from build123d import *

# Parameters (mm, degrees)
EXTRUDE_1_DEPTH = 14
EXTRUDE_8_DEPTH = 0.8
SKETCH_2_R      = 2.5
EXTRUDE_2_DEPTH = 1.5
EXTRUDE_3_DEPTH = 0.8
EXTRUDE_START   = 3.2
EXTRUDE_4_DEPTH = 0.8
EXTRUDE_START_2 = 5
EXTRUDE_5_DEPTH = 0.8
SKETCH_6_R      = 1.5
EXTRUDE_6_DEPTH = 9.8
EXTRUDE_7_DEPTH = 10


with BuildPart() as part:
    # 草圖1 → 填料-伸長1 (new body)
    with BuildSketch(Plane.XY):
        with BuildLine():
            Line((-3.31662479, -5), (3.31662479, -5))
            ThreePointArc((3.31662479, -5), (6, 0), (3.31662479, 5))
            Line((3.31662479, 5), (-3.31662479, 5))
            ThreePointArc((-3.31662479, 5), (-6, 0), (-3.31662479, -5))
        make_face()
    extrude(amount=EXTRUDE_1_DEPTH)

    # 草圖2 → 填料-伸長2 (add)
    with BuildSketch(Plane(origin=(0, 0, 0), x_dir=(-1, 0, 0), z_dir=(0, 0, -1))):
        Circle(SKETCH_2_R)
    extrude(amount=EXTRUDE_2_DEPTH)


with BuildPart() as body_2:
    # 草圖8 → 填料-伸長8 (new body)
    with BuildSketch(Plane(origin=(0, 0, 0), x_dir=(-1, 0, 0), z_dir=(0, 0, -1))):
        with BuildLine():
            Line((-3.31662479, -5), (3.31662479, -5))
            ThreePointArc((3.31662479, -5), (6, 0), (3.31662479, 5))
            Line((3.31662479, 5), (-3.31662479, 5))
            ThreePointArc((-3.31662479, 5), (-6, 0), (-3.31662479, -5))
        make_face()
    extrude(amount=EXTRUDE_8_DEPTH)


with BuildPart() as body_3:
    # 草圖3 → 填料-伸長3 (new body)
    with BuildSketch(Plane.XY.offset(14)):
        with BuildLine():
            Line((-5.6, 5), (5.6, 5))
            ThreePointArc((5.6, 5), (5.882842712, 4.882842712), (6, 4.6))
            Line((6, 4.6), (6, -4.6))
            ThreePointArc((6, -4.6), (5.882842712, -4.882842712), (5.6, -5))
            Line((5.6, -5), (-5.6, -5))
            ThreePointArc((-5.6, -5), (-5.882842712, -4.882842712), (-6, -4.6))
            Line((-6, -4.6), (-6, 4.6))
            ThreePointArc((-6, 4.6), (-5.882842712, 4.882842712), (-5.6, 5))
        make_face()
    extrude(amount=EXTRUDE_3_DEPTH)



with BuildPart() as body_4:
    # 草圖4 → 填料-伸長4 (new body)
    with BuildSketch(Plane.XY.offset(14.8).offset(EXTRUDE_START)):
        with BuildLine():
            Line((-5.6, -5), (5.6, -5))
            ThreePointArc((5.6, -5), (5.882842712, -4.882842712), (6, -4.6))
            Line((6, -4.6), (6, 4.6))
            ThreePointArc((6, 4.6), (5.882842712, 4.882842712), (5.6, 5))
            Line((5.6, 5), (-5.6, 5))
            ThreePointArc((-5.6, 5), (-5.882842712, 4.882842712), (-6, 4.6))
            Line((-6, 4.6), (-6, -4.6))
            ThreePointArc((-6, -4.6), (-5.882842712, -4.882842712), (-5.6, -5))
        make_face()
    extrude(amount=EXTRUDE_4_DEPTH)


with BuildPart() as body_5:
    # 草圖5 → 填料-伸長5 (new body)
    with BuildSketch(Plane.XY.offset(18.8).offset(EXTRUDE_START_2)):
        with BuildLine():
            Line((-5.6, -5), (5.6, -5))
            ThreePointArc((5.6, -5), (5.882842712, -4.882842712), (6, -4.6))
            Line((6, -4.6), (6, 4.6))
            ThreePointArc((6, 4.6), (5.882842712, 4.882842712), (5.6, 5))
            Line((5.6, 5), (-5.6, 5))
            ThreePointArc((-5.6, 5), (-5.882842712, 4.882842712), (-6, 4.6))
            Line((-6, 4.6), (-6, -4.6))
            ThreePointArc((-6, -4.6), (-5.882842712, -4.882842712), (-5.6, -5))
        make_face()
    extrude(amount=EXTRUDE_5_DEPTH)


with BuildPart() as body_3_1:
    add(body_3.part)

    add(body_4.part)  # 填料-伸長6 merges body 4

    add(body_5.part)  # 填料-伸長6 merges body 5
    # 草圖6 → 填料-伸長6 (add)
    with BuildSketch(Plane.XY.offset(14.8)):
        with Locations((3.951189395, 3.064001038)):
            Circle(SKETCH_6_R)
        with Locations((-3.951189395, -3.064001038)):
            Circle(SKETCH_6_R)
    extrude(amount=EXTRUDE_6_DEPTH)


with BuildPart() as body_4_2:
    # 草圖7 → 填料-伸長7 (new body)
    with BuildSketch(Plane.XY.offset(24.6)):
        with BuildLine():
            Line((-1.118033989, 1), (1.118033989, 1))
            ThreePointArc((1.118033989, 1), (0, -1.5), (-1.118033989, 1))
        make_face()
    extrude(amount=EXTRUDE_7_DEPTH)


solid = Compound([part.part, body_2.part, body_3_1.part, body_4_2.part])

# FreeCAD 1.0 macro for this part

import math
import FreeCAD as App
import Part
import Sketcher
Q = App.Units.Quantity

doc = App.newDocument("Part")
params = doc.addObject("Spreadsheet::Sheet", "Params")
for row, (alias, value) in enumerate([
    ("sketch1_radius", "6 mm"),
    ("pad1_length", "14 mm"),
    ("sketch2_diameter", "5 mm"),
    ("pad2_length", "1.5 mm"),
    ("sketch3_radius", "6 mm"),
    ("pad3_length", "0.8 mm"),
    ("sketch4_radius", "0.4 mm"),
    ("sketch4_width", "11.2 mm"),
    ("sketch4_height", "9.2 mm"),
    ("pad4_length", "0.8 mm"),
    ("sketch5_radius", "0.4 mm"),
    ("sketch5_width", "11.2 mm"),
    ("sketch5_height", "9.2 mm"),
    ("pad5_length", "0.8 mm"),
    ("sketch6_radius", "0.4 mm"),
    ("sketch6_width", "11.2 mm"),
    ("sketch6_height", "9.2 mm"),
    ("pad6_length", "0.8 mm"),
    ("sketch7_diameter", "3 mm"),
    ("pad7_length", "9.8 mm"),
    ("sketch8_radius", "1.5 mm"),
    ("pad8_length", "10 mm"),
], start=1):
    params.set(f"A{row}", alias)
    params.set(f"B{row}", "=" + value)
    params.setAlias(f"B{row}", alias)

body = doc.addObject("PartDesign::Body", "Body")

sketch1 = doc.addObject("Sketcher::SketchObject", "Sketch")
body.addObject(sketch1)
sketch1.AttachmentSupport = (doc.XY_Plane, [""])
sketch1.MapMode = "FlatFace"
sketch1.addGeometry(Part.LineSegment(App.Vector(-3, -5, 0), App.Vector(3, -5, 0)), False)
sketch1.addGeometry(Part.ArcOfCircle(Part.Circle(App.Vector(0, 0, 0), App.Vector(0, 0, 1), 6), math.radians(-56), math.radians(56)), False)
sketch1.addGeometry(Part.LineSegment(App.Vector(3, 5, 0), App.Vector(-3, 5, 0)), False)
sketch1.addGeometry(Part.ArcOfCircle(Part.Circle(App.Vector(0, 0, 0), App.Vector(0, 0, 1), 6), math.radians(124), math.radians(236)), False)
sketch1.addConstraint(Sketcher.Constraint("Coincident", 0, 2, 1, 1))
sketch1.addConstraint(Sketcher.Constraint("Coincident", 1, 2, 2, 1))
sketch1.addConstraint(Sketcher.Constraint("Coincident", 2, 2, 3, 1))
sketch1.addConstraint(Sketcher.Constraint("Coincident", 3, 2, 0, 1))
sketch1.addConstraint(Sketcher.Constraint("Horizontal", 0))
sketch1.addConstraint(Sketcher.Constraint("Horizontal", 2))
sketch1.addConstraint(Sketcher.Constraint("Coincident", 1, 3, -1, 1))
sketch1.addConstraint(Sketcher.Constraint("Coincident", 3, 3, -1, 1))
sketch1.addConstraint(Sketcher.Constraint("Equal", 1, 3))
sketch1.addConstraint(Sketcher.Constraint("Vertical", 0, 2, 1, 2))
sketch1.addConstraint(Sketcher.Constraint("Radius", 1, Q("6 mm")))
sketch1.addConstraint(Sketcher.Constraint("DistanceY", 0, 2, -1, 1, Q("5 mm")))
sketch1.setExpression("Constraints[10]", "Params.sketch1_radius")
pad1 = doc.addObject("PartDesign::Pad", "Pad")
body.addObject(pad1)
pad1.Profile = sketch1
pad1.setExpression("Length", "Params.pad1_length")

sketch2 = doc.addObject("Sketcher::SketchObject", "Sketch001")
body.addObject(sketch2)
sketch2.AttachmentSupport = (doc.XY_Plane, [""])
sketch2.MapMode = "FlatFace"
sketch2.addGeometry(Part.Circle(App.Vector(0, 0, 0), App.Vector(0, 0, 1), 2.5), False)
sketch2.addConstraint(Sketcher.Constraint("Coincident", 0, 3, -1, 1))
sketch2.addConstraint(Sketcher.Constraint("Diameter", 0, Q("5 mm")))
sketch2.setExpression("Constraints[1]", "Params.sketch2_diameter")
pad2 = doc.addObject("PartDesign::Pad", "Pad001")
body.addObject(pad2)
pad2.Profile = sketch2
pad2.setExpression("Length", "Params.pad2_length")
pad2.Reversed = True
body2 = doc.addObject("PartDesign::Body", "Body001")

sketch3 = doc.addObject("Sketcher::SketchObject", "Sketch002")
body2.addObject(sketch3)
sketch3.AttachmentSupport = (doc.getObject("XY_Plane001"), [""])
sketch3.MapMode = "FlatFace"
sketch3.addGeometry(Part.LineSegment(App.Vector(3, -5, 0), App.Vector(-3, -5, 0)), False)
sketch3.addGeometry(Part.ArcOfCircle(Part.Circle(App.Vector(0, 0, 0), App.Vector(0, 0, 1), 6), math.radians(124), math.radians(236)), False)
sketch3.addGeometry(Part.LineSegment(App.Vector(-3, 5, 0), App.Vector(3, 5, 0)), False)
sketch3.addGeometry(Part.ArcOfCircle(Part.Circle(App.Vector(0, 0, 0), App.Vector(0, 0, 1), 6), math.radians(-56), math.radians(56)), False)
sketch3.addConstraint(Sketcher.Constraint("Coincident", 0, 2, 1, 2))
sketch3.addConstraint(Sketcher.Constraint("Coincident", 1, 1, 2, 1))
sketch3.addConstraint(Sketcher.Constraint("Coincident", 2, 2, 3, 2))
sketch3.addConstraint(Sketcher.Constraint("Coincident", 3, 1, 0, 1))
sketch3.addConstraint(Sketcher.Constraint("Horizontal", 0))
sketch3.addConstraint(Sketcher.Constraint("Horizontal", 2))
sketch3.addConstraint(Sketcher.Constraint("Coincident", 1, 3, -1, 1))
sketch3.addConstraint(Sketcher.Constraint("Coincident", 3, 3, -1, 1))
sketch3.addConstraint(Sketcher.Constraint("Equal", 1, 3))
sketch3.addConstraint(Sketcher.Constraint("Vertical", 0, 2, 1, 1))
sketch3.addConstraint(Sketcher.Constraint("Radius", 1, Q("6 mm")))
sketch3.addConstraint(Sketcher.Constraint("DistanceY", 0, 2, -1, 1, Q("5 mm")))
sketch3.setExpression("Constraints[10]", "Params.sketch3_radius")
pad3 = doc.addObject("PartDesign::Pad", "Pad002")
body2.addObject(pad3)
pad3.Profile = sketch3
pad3.setExpression("Length", "Params.pad3_length")
pad3.Reversed = True
body3 = doc.addObject("PartDesign::Body", "Body002")

sketch4 = doc.addObject("Sketcher::SketchObject", "Sketch003")
body3.addObject(sketch4)
sketch4.AttachmentSupport = (doc.getObject("XY_Plane002"), [""])
sketch4.MapMode = "FlatFace"
sketch4.AttachmentOffset = App.Placement(App.Vector(0, 0, 14), App.Rotation())
sketch4.addGeometry(Part.LineSegment(App.Vector(5.6, 5, 0), App.Vector(-5.6, 5, 0)), False)
sketch4.addGeometry(Part.ArcOfCircle(Part.Circle(App.Vector(-5.6, 4.6, 0), App.Vector(0, 0, 1), 0.4), math.radians(90), math.radians(180)), False)
sketch4.addGeometry(Part.LineSegment(App.Vector(-6, 4.6, 0), App.Vector(-6, -4.6, 0)), False)
sketch4.addGeometry(Part.ArcOfCircle(Part.Circle(App.Vector(-5.6, -4.6, 0), App.Vector(0, 0, 1), 0.4), math.radians(-180), math.radians(-90)), False)
sketch4.addGeometry(Part.LineSegment(App.Vector(-5.6, -5, 0), App.Vector(5.6, -5, 0)), False)
sketch4.addGeometry(Part.ArcOfCircle(Part.Circle(App.Vector(5.6, -4.6, 0), App.Vector(0, 0, 1), 0.4), math.radians(-90), math.radians(0)), False)
sketch4.addGeometry(Part.LineSegment(App.Vector(6, -4.6, 0), App.Vector(6, 4.6, 0)), False)
sketch4.addGeometry(Part.ArcOfCircle(Part.Circle(App.Vector(5.6, 4.6, 0), App.Vector(0, 0, 1), 0.4), math.radians(0), math.radians(90)), False)
sketch4.addConstraint(Sketcher.Constraint("Tangent", 0, 2, 1, 1))
sketch4.addConstraint(Sketcher.Constraint("Tangent", 1, 2, 2, 1))
sketch4.addConstraint(Sketcher.Constraint("Tangent", 2, 2, 3, 1))
sketch4.addConstraint(Sketcher.Constraint("Tangent", 3, 2, 4, 1))
sketch4.addConstraint(Sketcher.Constraint("Tangent", 4, 2, 5, 1))
sketch4.addConstraint(Sketcher.Constraint("Tangent", 5, 2, 6, 1))
sketch4.addConstraint(Sketcher.Constraint("Tangent", 6, 2, 7, 1))
sketch4.addConstraint(Sketcher.Constraint("Tangent", 7, 2, 0, 1))
sketch4.addConstraint(Sketcher.Constraint("Horizontal", 0))
sketch4.addConstraint(Sketcher.Constraint("Vertical", 2))
sketch4.addConstraint(Sketcher.Constraint("Horizontal", 4))
sketch4.addConstraint(Sketcher.Constraint("Vertical", 6))
sketch4.addConstraint(Sketcher.Constraint("Equal", 1, 3))
sketch4.addConstraint(Sketcher.Constraint("Equal", 3, 5))
sketch4.addConstraint(Sketcher.Constraint("Equal", 5, 7))
sketch4.addConstraint(Sketcher.Constraint("Symmetric", 1, 3, 5, 3, -1, 1))
sketch4.addConstraint(Sketcher.Constraint("Radius", 1, Q("0.4 mm")))
sketch4.addConstraint(Sketcher.Constraint("DistanceX", 0, 2, 0, 1, Q("11.2 mm")))
sketch4.addConstraint(Sketcher.Constraint("DistanceY", 2, 2, 2, 1, Q("9.2 mm")))
sketch4.setExpression("Constraints[16]", "Params.sketch4_radius")
sketch4.setExpression("Constraints[17]", "Params.sketch4_width")
sketch4.setExpression("Constraints[18]", "Params.sketch4_height")
pad4 = doc.addObject("PartDesign::Pad", "Pad003")
body3.addObject(pad4)
pad4.Profile = sketch4
pad4.setExpression("Length", "Params.pad4_length")
body4 = doc.addObject("PartDesign::Body", "Body003")

sketch5 = doc.addObject("Sketcher::SketchObject", "Sketch004")
body4.addObject(sketch5)
sketch5.AttachmentSupport = (doc.getObject("XY_Plane003"), [""])
sketch5.MapMode = "FlatFace"
sketch5.AttachmentOffset = App.Placement(App.Vector(0, 0, 18), App.Rotation())
sketch5.addGeometry(Part.LineSegment(App.Vector(-5.6, -5, 0), App.Vector(5.6, -5, 0)), False)
sketch5.addGeometry(Part.ArcOfCircle(Part.Circle(App.Vector(5.6, -4.6, 0), App.Vector(0, 0, 1), 0.4), math.radians(-90), math.radians(0)), False)
sketch5.addGeometry(Part.LineSegment(App.Vector(6, -4.6, 0), App.Vector(6, 4.6, 0)), False)
sketch5.addGeometry(Part.ArcOfCircle(Part.Circle(App.Vector(5.6, 4.6, 0), App.Vector(0, 0, 1), 0.4), math.radians(0), math.radians(90)), False)
sketch5.addGeometry(Part.LineSegment(App.Vector(5.6, 5, 0), App.Vector(-5.6, 5, 0)), False)
sketch5.addGeometry(Part.ArcOfCircle(Part.Circle(App.Vector(-5.6, 4.6, 0), App.Vector(0, 0, 1), 0.4), math.radians(90), math.radians(180)), False)
sketch5.addGeometry(Part.LineSegment(App.Vector(-6, 4.6, 0), App.Vector(-6, -4.6, 0)), False)
sketch5.addGeometry(Part.ArcOfCircle(Part.Circle(App.Vector(-5.6, -4.6, 0), App.Vector(0, 0, 1), 0.4), math.radians(-180), math.radians(-90)), False)
sketch5.addConstraint(Sketcher.Constraint("Tangent", 0, 2, 1, 1))
sketch5.addConstraint(Sketcher.Constraint("Tangent", 1, 2, 2, 1))
sketch5.addConstraint(Sketcher.Constraint("Tangent", 2, 2, 3, 1))
sketch5.addConstraint(Sketcher.Constraint("Tangent", 3, 2, 4, 1))
sketch5.addConstraint(Sketcher.Constraint("Tangent", 4, 2, 5, 1))
sketch5.addConstraint(Sketcher.Constraint("Tangent", 5, 2, 6, 1))
sketch5.addConstraint(Sketcher.Constraint("Tangent", 6, 2, 7, 1))
sketch5.addConstraint(Sketcher.Constraint("Tangent", 7, 2, 0, 1))
sketch5.addConstraint(Sketcher.Constraint("Horizontal", 0))
sketch5.addConstraint(Sketcher.Constraint("Vertical", 2))
sketch5.addConstraint(Sketcher.Constraint("Horizontal", 4))
sketch5.addConstraint(Sketcher.Constraint("Vertical", 6))
sketch5.addConstraint(Sketcher.Constraint("Equal", 1, 3))
sketch5.addConstraint(Sketcher.Constraint("Equal", 3, 5))
sketch5.addConstraint(Sketcher.Constraint("Equal", 5, 7))
sketch5.addConstraint(Sketcher.Constraint("Symmetric", 1, 3, 5, 3, -1, 1))
sketch5.addConstraint(Sketcher.Constraint("Radius", 1, Q("0.4 mm")))
sketch5.addConstraint(Sketcher.Constraint("DistanceX", 0, 1, 0, 2, Q("11.2 mm")))
sketch5.addConstraint(Sketcher.Constraint("DistanceY", 2, 1, 2, 2, Q("9.2 mm")))
sketch5.setExpression("Constraints[16]", "Params.sketch5_radius")
sketch5.setExpression("Constraints[17]", "Params.sketch5_width")
sketch5.setExpression("Constraints[18]", "Params.sketch5_height")
pad5 = doc.addObject("PartDesign::Pad", "Pad004")
body4.addObject(pad5)
pad5.Profile = sketch5
pad5.setExpression("Length", "Params.pad5_length")
body5 = doc.addObject("PartDesign::Body", "Body004")

sketch6 = doc.addObject("Sketcher::SketchObject", "Sketch005")
body5.addObject(sketch6)
sketch6.AttachmentSupport = (doc.getObject("XY_Plane004"), [""])
sketch6.MapMode = "FlatFace"
sketch6.AttachmentOffset = App.Placement(App.Vector(0, 0, 23.8), App.Rotation())
sketch6.addGeometry(Part.LineSegment(App.Vector(-5.6, -5, 0), App.Vector(5.6, -5, 0)), False)
sketch6.addGeometry(Part.ArcOfCircle(Part.Circle(App.Vector(5.6, -4.6, 0), App.Vector(0, 0, 1), 0.4), math.radians(-90), math.radians(0)), False)
sketch6.addGeometry(Part.LineSegment(App.Vector(6, -4.6, 0), App.Vector(6, 4.6, 0)), False)
sketch6.addGeometry(Part.ArcOfCircle(Part.Circle(App.Vector(5.6, 4.6, 0), App.Vector(0, 0, 1), 0.4), math.radians(0), math.radians(90)), False)
sketch6.addGeometry(Part.LineSegment(App.Vector(5.6, 5, 0), App.Vector(-5.6, 5, 0)), False)
sketch6.addGeometry(Part.ArcOfCircle(Part.Circle(App.Vector(-5.6, 4.6, 0), App.Vector(0, 0, 1), 0.4), math.radians(90), math.radians(180)), False)
sketch6.addGeometry(Part.LineSegment(App.Vector(-6, 4.6, 0), App.Vector(-6, -4.6, 0)), False)
sketch6.addGeometry(Part.ArcOfCircle(Part.Circle(App.Vector(-5.6, -4.6, 0), App.Vector(0, 0, 1), 0.4), math.radians(-180), math.radians(-90)), False)
sketch6.addConstraint(Sketcher.Constraint("Tangent", 0, 2, 1, 1))
sketch6.addConstraint(Sketcher.Constraint("Tangent", 1, 2, 2, 1))
sketch6.addConstraint(Sketcher.Constraint("Tangent", 2, 2, 3, 1))
sketch6.addConstraint(Sketcher.Constraint("Tangent", 3, 2, 4, 1))
sketch6.addConstraint(Sketcher.Constraint("Tangent", 4, 2, 5, 1))
sketch6.addConstraint(Sketcher.Constraint("Tangent", 5, 2, 6, 1))
sketch6.addConstraint(Sketcher.Constraint("Tangent", 6, 2, 7, 1))
sketch6.addConstraint(Sketcher.Constraint("Tangent", 7, 2, 0, 1))
sketch6.addConstraint(Sketcher.Constraint("Horizontal", 0))
sketch6.addConstraint(Sketcher.Constraint("Vertical", 2))
sketch6.addConstraint(Sketcher.Constraint("Horizontal", 4))
sketch6.addConstraint(Sketcher.Constraint("Vertical", 6))
sketch6.addConstraint(Sketcher.Constraint("Equal", 1, 3))
sketch6.addConstraint(Sketcher.Constraint("Equal", 3, 5))
sketch6.addConstraint(Sketcher.Constraint("Equal", 5, 7))
sketch6.addConstraint(Sketcher.Constraint("Symmetric", 1, 3, 5, 3, -1, 1))
sketch6.addConstraint(Sketcher.Constraint("Radius", 1, Q("0.4 mm")))
sketch6.addConstraint(Sketcher.Constraint("DistanceX", 0, 1, 0, 2, Q("11.2 mm")))
sketch6.addConstraint(Sketcher.Constraint("DistanceY", 2, 1, 2, 2, Q("9.2 mm")))
sketch6.setExpression("Constraints[16]", "Params.sketch6_radius")
sketch6.setExpression("Constraints[17]", "Params.sketch6_width")
sketch6.setExpression("Constraints[18]", "Params.sketch6_height")
pad6 = doc.addObject("PartDesign::Pad", "Pad005")
body5.addObject(pad6)
pad6.Profile = sketch6
pad6.setExpression("Length", "Params.pad6_length")
body3.AllowCompound = True
doc.recompute()

boolean = doc.addObject("PartDesign::Boolean", "Boolean")
body3.addObject(boolean)
boolean.Type = "Fuse"
boolean.addObjects([body4])
doc.recompute()

boolean2 = doc.addObject("PartDesign::Boolean", "Boolean001")
body3.addObject(boolean2)
boolean2.Type = "Fuse"
boolean2.addObjects([body5])

sketch7 = doc.addObject("Sketcher::SketchObject", "Sketch006")
body3.addObject(sketch7)
sketch7.AttachmentSupport = (doc.getObject("XY_Plane002"), [""])
sketch7.MapMode = "FlatFace"
sketch7.AttachmentOffset = App.Placement(App.Vector(0, 0, 14.8), App.Rotation())
sketch7.addGeometry(Part.Circle(App.Vector(4, 3.1, 0), App.Vector(0, 0, 1), 1.5), False)
sketch7.addGeometry(Part.Circle(App.Vector(-4, -3.1, 0), App.Vector(0, 0, 1), 1.5), False)
sketch7.addConstraint(Sketcher.Constraint("Equal", 0, 1))
sketch7.addConstraint(Sketcher.Constraint("Symmetric", 0, 3, 1, 3, -1, 1))
sketch7.addConstraint(Sketcher.Constraint("Diameter", 0, Q("3 mm")))
sketch7.addConstraint(Sketcher.Constraint("DistanceY", -1, 1, 0, 3, Q("3.064001 mm")))
sketch7.addConstraint(Sketcher.Constraint("DistanceX", -1, 1, 0, 3, Q("3.951189 mm")))
sketch7.setExpression("Constraints[2]", "Params.sketch7_diameter")
pad7 = doc.addObject("PartDesign::Pad", "Pad006")
body3.addObject(pad7)
pad7.Profile = sketch7
pad7.setExpression("Length", "Params.pad7_length")
body6 = doc.addObject("PartDesign::Body", "Body005")

sketch8 = doc.addObject("Sketcher::SketchObject", "Sketch007")
body6.addObject(sketch8)
sketch8.AttachmentSupport = (doc.getObject("XY_Plane005"), [""])
sketch8.MapMode = "FlatFace"
sketch8.AttachmentOffset = App.Placement(App.Vector(0, 0, 24.6), App.Rotation())
sketch8.addGeometry(Part.LineSegment(App.Vector(1.1, 1, 0), App.Vector(-1.1, 1, 0)), False)
sketch8.addGeometry(Part.ArcOfCircle(Part.Circle(App.Vector(0, 0, 0), App.Vector(0, 0, 1), 1.5), math.radians(138), math.radians(402)), False)
sketch8.addConstraint(Sketcher.Constraint("Coincident", 0, 1, 1, 2))
sketch8.addConstraint(Sketcher.Constraint("Coincident", 1, 1, 0, 2))
sketch8.addConstraint(Sketcher.Constraint("Horizontal", 0))
sketch8.addConstraint(Sketcher.Constraint("Coincident", 1, 3, -1, 1))
sketch8.addConstraint(Sketcher.Constraint("Radius", 1, Q("1.5 mm")))
sketch8.addConstraint(Sketcher.Constraint("DistanceY", -1, 1, 0, 1, Q("1 mm")))
sketch8.setExpression("Constraints[4]", "Params.sketch8_radius")
pad8 = doc.addObject("PartDesign::Pad", "Pad007")
body6.addObject(pad8)
pad8.Profile = sketch8
pad8.setExpression("Length", "Params.pad8_length")

doc.recompute()
